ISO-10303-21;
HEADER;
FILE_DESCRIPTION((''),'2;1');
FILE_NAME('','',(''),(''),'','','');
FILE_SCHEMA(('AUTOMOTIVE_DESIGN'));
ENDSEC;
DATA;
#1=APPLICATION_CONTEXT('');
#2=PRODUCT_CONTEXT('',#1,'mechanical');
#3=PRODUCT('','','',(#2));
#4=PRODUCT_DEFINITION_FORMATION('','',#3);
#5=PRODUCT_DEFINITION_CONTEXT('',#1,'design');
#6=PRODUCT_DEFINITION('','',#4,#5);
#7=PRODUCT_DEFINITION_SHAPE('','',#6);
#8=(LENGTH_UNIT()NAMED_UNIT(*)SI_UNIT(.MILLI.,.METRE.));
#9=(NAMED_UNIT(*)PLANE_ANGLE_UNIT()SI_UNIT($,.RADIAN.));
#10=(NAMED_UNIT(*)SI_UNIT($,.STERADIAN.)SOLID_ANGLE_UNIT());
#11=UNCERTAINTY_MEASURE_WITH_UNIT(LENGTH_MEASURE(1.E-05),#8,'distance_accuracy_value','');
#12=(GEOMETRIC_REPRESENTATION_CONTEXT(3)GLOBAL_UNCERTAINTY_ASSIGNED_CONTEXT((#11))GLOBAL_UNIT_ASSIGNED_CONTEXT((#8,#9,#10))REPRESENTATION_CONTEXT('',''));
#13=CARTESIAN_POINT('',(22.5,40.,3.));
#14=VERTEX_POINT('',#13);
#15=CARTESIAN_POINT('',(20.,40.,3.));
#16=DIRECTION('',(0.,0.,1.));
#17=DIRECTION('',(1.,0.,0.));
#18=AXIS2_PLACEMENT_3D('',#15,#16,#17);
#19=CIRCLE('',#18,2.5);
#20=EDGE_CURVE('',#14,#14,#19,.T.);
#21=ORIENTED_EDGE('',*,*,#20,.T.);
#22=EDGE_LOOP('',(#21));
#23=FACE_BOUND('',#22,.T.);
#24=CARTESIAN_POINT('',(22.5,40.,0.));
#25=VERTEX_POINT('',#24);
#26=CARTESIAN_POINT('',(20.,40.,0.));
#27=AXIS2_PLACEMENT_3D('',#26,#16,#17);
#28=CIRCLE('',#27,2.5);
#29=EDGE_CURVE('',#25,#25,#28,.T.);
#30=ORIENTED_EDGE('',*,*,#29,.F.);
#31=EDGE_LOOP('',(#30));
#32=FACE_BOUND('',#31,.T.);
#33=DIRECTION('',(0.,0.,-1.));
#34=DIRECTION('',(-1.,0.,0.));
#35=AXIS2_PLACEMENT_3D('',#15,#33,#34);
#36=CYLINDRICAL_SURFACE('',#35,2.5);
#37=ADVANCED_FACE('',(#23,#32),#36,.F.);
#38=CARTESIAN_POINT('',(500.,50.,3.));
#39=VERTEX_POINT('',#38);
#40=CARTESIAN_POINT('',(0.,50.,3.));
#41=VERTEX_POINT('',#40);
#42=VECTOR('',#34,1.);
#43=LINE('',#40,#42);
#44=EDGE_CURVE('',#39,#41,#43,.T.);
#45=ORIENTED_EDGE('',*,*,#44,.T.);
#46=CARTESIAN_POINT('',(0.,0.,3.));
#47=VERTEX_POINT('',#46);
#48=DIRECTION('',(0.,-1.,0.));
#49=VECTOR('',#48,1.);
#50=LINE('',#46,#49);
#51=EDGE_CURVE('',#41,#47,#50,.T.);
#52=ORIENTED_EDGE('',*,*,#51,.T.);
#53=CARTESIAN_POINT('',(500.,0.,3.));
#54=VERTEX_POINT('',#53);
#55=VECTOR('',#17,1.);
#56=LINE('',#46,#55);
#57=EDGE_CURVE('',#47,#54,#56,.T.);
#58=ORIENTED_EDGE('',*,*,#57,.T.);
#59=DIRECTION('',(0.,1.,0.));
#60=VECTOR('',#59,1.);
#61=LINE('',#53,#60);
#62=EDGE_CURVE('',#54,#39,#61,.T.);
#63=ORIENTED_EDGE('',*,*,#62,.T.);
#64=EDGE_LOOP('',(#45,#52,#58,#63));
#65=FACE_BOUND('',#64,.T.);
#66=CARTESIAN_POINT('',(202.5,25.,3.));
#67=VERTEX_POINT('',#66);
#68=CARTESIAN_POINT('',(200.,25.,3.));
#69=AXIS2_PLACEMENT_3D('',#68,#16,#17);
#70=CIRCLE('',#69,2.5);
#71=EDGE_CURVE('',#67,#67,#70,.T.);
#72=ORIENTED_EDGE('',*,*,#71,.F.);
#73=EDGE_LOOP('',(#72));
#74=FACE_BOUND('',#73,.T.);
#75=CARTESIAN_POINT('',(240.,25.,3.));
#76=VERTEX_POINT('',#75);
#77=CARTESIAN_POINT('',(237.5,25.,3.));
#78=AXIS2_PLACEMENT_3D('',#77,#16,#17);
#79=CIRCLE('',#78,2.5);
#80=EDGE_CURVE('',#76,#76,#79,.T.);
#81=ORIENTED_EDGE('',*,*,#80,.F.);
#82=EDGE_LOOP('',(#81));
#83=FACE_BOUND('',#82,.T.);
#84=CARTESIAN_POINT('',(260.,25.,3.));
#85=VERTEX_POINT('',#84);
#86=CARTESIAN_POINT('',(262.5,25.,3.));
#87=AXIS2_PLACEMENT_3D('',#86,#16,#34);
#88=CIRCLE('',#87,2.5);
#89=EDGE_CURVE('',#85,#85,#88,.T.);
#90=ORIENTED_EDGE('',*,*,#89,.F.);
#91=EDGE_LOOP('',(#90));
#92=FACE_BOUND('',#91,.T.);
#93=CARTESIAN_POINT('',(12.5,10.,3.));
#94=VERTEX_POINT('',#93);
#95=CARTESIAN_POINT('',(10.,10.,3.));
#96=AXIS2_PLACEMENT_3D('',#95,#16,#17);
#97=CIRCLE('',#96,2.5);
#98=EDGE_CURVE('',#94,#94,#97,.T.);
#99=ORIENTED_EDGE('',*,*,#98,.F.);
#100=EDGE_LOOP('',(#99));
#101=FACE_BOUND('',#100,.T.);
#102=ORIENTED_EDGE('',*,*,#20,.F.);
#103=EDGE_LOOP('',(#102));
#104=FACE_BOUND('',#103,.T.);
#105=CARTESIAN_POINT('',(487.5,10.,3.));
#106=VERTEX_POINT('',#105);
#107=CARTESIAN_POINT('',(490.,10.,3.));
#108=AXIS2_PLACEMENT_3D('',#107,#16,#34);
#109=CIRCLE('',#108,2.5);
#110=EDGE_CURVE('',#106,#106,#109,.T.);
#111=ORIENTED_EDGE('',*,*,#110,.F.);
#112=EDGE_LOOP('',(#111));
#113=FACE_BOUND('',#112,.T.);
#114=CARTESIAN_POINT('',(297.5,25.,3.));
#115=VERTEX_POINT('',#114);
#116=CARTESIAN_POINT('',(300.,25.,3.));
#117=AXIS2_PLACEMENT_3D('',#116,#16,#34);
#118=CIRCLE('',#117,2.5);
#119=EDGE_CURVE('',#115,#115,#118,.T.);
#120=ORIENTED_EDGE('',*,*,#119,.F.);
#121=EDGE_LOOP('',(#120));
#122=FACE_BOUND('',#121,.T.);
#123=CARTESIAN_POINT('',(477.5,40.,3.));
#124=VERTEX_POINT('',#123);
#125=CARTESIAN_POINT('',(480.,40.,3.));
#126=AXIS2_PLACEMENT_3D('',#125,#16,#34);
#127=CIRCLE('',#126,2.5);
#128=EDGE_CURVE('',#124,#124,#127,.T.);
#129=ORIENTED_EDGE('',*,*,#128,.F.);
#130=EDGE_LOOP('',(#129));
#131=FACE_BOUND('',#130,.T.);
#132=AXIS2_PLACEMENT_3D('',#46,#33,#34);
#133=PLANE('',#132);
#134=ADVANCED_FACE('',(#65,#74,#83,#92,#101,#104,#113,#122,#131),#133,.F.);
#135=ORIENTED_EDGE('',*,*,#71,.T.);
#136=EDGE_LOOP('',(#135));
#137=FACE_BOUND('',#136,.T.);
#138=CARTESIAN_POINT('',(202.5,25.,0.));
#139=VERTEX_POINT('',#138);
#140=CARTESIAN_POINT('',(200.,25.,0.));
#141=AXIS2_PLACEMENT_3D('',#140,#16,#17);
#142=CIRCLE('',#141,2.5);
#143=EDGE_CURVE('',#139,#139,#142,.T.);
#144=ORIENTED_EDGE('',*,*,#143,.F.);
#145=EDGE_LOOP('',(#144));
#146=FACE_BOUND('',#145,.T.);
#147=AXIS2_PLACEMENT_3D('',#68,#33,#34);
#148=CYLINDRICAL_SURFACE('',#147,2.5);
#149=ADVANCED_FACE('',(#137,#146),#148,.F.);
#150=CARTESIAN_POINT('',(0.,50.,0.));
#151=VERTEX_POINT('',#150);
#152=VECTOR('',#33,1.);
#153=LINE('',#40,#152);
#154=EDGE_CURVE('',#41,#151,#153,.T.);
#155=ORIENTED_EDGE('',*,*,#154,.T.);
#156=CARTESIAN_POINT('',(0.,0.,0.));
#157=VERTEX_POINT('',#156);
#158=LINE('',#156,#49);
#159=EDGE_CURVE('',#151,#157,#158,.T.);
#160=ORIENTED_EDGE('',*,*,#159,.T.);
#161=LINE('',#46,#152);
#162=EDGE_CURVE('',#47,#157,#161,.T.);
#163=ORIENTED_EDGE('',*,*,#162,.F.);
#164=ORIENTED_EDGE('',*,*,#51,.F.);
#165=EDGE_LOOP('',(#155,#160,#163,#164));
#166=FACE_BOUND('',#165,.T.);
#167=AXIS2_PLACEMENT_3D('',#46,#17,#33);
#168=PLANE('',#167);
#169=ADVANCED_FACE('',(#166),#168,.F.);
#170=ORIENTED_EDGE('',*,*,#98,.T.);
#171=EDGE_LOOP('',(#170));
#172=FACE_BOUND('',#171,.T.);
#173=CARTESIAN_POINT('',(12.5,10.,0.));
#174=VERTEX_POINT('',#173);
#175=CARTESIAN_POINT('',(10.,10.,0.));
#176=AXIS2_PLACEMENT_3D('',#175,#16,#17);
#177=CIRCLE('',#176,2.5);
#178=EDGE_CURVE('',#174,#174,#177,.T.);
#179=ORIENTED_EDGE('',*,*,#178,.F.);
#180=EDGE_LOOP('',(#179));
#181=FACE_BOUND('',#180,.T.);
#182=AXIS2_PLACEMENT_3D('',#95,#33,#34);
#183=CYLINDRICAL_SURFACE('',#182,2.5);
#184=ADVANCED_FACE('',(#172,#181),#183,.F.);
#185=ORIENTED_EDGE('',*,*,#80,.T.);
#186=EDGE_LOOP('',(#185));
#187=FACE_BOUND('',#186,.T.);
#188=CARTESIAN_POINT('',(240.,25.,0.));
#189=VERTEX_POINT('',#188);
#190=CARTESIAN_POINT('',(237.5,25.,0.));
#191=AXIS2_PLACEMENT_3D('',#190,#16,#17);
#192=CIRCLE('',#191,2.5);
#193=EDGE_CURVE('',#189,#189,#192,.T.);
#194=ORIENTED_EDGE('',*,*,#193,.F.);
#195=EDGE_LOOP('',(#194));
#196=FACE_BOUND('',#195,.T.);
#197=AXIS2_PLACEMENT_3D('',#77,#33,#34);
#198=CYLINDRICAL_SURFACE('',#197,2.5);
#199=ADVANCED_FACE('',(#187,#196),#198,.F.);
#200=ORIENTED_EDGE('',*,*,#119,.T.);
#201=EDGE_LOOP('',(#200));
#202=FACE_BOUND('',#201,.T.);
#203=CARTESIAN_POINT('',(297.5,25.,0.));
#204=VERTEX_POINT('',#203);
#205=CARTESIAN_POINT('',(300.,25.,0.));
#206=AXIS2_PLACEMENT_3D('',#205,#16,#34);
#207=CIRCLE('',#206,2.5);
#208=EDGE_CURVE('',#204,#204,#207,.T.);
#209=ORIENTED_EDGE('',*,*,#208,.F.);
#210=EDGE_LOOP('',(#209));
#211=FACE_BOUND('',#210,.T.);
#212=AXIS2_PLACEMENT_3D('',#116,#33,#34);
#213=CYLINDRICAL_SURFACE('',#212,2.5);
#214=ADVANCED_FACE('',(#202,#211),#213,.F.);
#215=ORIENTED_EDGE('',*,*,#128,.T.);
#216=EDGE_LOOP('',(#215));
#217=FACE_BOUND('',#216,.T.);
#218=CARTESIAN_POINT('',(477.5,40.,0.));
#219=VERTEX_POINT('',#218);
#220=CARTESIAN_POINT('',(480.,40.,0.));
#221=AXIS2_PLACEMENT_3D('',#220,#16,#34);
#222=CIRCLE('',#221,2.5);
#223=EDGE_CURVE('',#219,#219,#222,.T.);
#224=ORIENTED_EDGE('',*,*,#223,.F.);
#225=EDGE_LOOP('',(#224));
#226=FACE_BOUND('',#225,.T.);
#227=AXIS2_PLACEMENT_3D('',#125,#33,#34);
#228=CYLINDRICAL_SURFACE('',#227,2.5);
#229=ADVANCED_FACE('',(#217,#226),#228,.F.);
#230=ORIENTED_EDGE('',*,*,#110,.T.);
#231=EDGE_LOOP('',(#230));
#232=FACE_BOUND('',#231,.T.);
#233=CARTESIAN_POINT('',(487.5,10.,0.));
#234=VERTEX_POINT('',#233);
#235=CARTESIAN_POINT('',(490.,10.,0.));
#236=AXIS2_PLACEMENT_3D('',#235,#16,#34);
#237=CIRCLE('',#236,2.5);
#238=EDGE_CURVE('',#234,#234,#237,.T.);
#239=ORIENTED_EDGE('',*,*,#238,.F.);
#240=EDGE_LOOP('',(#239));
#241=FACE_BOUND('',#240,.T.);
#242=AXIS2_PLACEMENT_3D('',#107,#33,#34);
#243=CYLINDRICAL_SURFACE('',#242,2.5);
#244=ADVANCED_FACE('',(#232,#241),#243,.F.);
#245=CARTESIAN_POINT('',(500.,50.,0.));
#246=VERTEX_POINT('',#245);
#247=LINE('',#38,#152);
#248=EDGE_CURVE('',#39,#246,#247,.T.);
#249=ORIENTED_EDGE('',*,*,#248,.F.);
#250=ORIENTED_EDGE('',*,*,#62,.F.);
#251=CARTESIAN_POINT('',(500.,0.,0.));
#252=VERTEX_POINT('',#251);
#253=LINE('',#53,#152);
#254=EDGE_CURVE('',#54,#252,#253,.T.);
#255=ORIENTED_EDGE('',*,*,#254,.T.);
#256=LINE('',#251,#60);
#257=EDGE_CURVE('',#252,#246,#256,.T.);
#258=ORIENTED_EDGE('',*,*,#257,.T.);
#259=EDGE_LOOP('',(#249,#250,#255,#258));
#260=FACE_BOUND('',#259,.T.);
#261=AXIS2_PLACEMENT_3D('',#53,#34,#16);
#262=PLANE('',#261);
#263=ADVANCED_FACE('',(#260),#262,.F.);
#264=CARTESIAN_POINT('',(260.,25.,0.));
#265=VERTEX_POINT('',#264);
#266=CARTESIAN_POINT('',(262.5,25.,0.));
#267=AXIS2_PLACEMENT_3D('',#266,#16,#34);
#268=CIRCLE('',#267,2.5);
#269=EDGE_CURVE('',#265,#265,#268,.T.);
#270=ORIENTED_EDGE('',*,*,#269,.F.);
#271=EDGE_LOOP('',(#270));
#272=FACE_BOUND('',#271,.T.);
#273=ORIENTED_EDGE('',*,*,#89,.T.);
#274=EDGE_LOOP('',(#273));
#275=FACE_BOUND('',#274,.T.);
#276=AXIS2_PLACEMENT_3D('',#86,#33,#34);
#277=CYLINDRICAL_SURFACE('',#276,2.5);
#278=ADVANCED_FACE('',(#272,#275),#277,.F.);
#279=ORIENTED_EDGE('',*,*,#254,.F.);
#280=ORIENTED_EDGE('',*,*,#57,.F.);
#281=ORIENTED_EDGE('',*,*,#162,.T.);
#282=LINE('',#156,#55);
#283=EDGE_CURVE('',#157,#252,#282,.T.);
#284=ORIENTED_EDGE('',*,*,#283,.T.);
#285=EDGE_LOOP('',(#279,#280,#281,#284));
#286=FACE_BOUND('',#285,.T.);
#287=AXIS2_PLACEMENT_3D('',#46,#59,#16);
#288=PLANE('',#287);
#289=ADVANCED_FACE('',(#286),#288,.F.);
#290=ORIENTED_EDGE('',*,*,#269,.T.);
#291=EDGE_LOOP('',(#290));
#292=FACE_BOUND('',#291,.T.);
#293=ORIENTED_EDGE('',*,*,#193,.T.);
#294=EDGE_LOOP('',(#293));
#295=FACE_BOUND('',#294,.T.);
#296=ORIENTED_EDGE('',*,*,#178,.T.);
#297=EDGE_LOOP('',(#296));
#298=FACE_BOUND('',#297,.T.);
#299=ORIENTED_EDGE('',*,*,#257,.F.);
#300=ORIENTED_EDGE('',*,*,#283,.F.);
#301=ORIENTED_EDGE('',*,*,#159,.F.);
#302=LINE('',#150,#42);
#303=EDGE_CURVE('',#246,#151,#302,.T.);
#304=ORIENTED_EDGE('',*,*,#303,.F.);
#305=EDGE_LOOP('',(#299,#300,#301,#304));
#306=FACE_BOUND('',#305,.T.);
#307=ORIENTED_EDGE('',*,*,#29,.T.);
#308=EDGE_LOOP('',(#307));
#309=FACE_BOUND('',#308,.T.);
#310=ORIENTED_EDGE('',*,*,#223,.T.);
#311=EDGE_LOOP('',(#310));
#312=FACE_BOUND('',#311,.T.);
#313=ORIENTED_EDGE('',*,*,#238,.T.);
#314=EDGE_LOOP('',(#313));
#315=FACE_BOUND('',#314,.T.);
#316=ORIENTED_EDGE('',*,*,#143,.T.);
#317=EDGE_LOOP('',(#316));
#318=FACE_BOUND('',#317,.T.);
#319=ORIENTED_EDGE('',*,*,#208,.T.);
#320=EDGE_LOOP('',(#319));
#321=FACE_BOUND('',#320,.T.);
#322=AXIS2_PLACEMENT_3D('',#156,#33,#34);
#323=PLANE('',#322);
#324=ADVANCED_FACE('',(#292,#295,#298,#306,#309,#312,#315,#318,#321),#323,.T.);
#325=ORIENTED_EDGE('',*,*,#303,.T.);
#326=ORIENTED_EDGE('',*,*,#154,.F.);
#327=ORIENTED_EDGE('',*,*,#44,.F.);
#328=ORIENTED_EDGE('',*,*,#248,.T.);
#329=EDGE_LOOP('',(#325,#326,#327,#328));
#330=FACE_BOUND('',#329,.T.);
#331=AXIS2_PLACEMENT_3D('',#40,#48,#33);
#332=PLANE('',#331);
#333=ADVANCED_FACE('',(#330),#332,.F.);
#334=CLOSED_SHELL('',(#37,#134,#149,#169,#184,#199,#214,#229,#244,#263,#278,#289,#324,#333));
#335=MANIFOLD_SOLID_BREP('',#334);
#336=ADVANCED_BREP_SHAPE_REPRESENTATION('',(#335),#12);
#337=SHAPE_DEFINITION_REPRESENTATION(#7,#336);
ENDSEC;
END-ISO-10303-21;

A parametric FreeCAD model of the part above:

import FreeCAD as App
import Part
import Sketcher
Q = App.Units.Quantity

doc = App.newDocument("Part")
body = doc.addObject("PartDesign::Body", "Body")

# Sketch on XY plane
sketch1 = doc.addObject("Sketcher::SketchObject", "Sketch")
body.addObject(sketch1)
sketch1.AttachmentSupport = (doc.XY_Plane, [""])
sketch1.MapMode = "FlatFace"
sketch1.addGeometry([
    Part.LineSegment(App.Vector(0, 50, 0), App.Vector(0, 0, 0)),  # 0
    Part.LineSegment(App.Vector(0, 0, 0), App.Vector(500, 0, 0)),  # 1
    Part.LineSegment(App.Vector(500, 0, 0), App.Vector(500, 50, 0)),  # 2
    Part.LineSegment(App.Vector(500, 50, 0), App.Vector(0, 50, 0)),  # 3
    Part.Circle(App.Vector(10, 10, 0), App.Vector(0, 0, 1), 2.5),  # 4
    Part.Circle(App.Vector(490, 10, 0), App.Vector(0, 0, 1), 2.5),  # 5
    Part.Circle(App.Vector(200, 25, 0), App.Vector(0, 0, 1), 2.5),  # 6
    Part.Circle(App.Vector(237.5, 25, 0), App.Vector(0, 0, 1), 2.5),  # 7
    Part.Circle(App.Vector(20, 40, 0), App.Vector(0, 0, 1), 2.5),  # 8
    Part.Circle(App.Vector(262.5, 25, 0), App.Vector(0, 0, 1), 2.5),  # 9
    Part.Circle(App.Vector(300, 25, 0), App.Vector(0, 0, 1), 2.5),  # 10
    Part.Circle(App.Vector(480, 40, 0), App.Vector(0, 0, 1), 2.5),  # 11
], False)
sketch1.addConstraint([
    Sketcher.Constraint("Coincident", 0, 2, 1, 1),
    Sketcher.Constraint("Coincident", 1, 2, 2, 1),
    Sketcher.Constraint("Coincident", 2, 2, 3, 1),
    Sketcher.Constraint("Coincident", 3, 2, 0, 1),
    Sketcher.Constraint("Vertical", 0),
    Sketcher.Constraint("Horizontal", 1),
    Sketcher.Constraint("Vertical", 2),
    Sketcher.Constraint("Horizontal", 3),
    Sketcher.Constraint("Coincident", 0, 2, -1, 1),
    Sketcher.Constraint("Equal", 4, 5),
    Sketcher.Constraint("Equal", 5, 6),
    Sketcher.Constraint("Equal", 6, 7),
    Sketcher.Constraint("Equal", 7, 8),
    Sketcher.Constraint("Equal", 8, 9),
    Sketcher.Constraint("Equal", 9, 10),
    Sketcher.Constraint("Equal", 10, 11),
    Sketcher.Constraint("Horizontal", 4, 3, 5, 3),
    Sketcher.Constraint("Horizontal", 6, 3, 7, 3),
    Sketcher.Constraint("Horizontal", 7, 3, 9, 3),
    Sketcher.Constraint("Horizontal", 9, 3, 10, 3),
    Sketcher.Constraint("Horizontal", 8, 3, 11, 3),
    Sketcher.Constraint("Diameter", 4, Q("5 mm")),
    Sketcher.Constraint("DistanceX", 1, 1, 1, 2, Q("500 mm")),
    Sketcher.Constraint("DistanceY", 0, 2, 0, 1, Q("50 mm")),
    Sketcher.Constraint("DistanceX", -1, 1, 4, 3, Q("10 mm")),
    Sketcher.Constraint("DistanceY", -1, 1, 4, 3, Q("10 mm")),
    Sketcher.Constraint("DistanceX", -1, 1, 5, 3, Q("490 mm")),
    Sketcher.Constraint("DistanceX", -1, 1, 6, 3, Q("200 mm")),
    Sketcher.Constraint("DistanceY", -1, 1, 6, 3, Q("25 mm")),
    Sketcher.Constraint("DistanceX", -1, 1, 8, 3, Q("20 mm")),
    Sketcher.Constraint("DistanceY", -1, 1, 8, 3, Q("40 mm")),
    Sketcher.Constraint("DistanceX", -1, 1, 10, 3, Q("300 mm")),
    Sketcher.Constraint("DistanceX", -1, 1, 11, 3, Q("480 mm")),
    Sketcher.Constraint("DistanceX", 7, 3, 9, 3, Q("25 mm")),
    Sketcher.Constraint("DistanceX", -1, 1, 7, 3, Q("237.5 mm")),
])
pad1 = doc.addObject("PartDesign::Pad", "Pad")
body.addObject(pad1)
pad1.Profile = sketch1
pad1.Length = 3

doc.recompute()
